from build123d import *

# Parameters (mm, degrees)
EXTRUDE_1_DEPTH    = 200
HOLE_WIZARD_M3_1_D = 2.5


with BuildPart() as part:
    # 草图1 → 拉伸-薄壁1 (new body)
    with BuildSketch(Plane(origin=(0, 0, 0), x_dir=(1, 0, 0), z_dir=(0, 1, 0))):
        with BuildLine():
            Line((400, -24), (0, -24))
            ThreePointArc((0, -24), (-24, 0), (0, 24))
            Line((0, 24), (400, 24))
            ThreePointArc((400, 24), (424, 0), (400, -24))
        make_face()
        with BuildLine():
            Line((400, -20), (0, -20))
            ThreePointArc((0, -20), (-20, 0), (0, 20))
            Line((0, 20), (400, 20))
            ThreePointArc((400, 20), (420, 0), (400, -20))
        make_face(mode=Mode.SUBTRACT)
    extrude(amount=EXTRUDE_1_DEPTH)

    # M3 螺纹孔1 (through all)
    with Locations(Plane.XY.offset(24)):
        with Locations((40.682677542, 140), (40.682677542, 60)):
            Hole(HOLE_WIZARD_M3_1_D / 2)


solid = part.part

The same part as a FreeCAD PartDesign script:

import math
import FreeCAD as App
import Part
import Sketcher

doc = App.newDocument("Part")
body = doc.addObject("PartDesign::Body", "Body")

# Sketch on XZ plane
sketch1 = doc.addObject("Sketcher::SketchObject", "Sketch")
body.addObject(sketch1)
sketch1.AttachmentSupport = (doc.XZ_Plane, [""])
sketch1.MapMode = "FlatFace"
sketch1.addGeometry(Part.LineSegment(App.Vector(0, 24, 0), App.Vector(400, 24, 0)), False)
sketch1.addGeometry(Part.ArcOfCircle(Part.Circle(App.Vector(400, 0, 0), App.Vector(0, 0, 1), 24), math.radians(-90), math.radians(90)), False)
sketch1.addGeometry(Part.LineSegment(App.Vector(400, -24, 0), App.Vector(0, -24, 0)), False)
sketch1.addGeometry(Part.ArcOfCircle(Part.Circle(App.Vector(0, 0, 0), App.Vector(0, 0, 1), 24), math.radians(90), math.radians(270)), False)
sketch1.addGeometry(Part.LineSegment(App.Vector(400, 20, 0), App.Vector(0, 20, 0)), False)
sketch1.addGeometry(Part.ArcOfCircle(Part.Circle(App.Vector(0, 0, 0), App.Vector(0, 0, 1), 20), math.radians(90), math.radians(270)), False)
sketch1.addGeometry(Part.LineSegment(App.Vector(0, -20, 0), App.Vector(400, -20, 0)), False)
sketch1.addGeometry(Part.ArcOfCircle(Part.Circle(App.Vector(400, 0, 0), App.Vector(0, 0, 1), 20), math.radians(-90), math.radians(90)), False)
sketch1.addConstraint(Sketcher.Constraint("Tangent", 0, 2, 1, 2))
sketch1.addConstraint(Sketcher.Constraint("Tangent", 1, 1, 2, 1))
sketch1.addConstraint(Sketcher.Constraint("Tangent", 2, 2, 3, 2))
sketch1.addConstraint(Sketcher.Constraint("Tangent", 3, 1, 0, 1))
sketch1.addConstraint(Sketcher.Constraint("Tangent", 4, 2, 5, 1))
sketch1.addConstraint(Sketcher.Constraint("Tangent", 5, 2, 6, 1))
sketch1.addConstraint(Sketcher.Constraint("Tangent", 6, 2, 7, 1))
sketch1.addConstraint(Sketcher.Constraint("Tangent", 7, 2, 4, 1))
sketch1.addConstraint(Sketcher.Constraint("Horizontal", 0))
sketch1.addConstraint(Sketcher.Constraint("Horizontal", 2))
sketch1.addConstraint(Sketcher.Constraint("Horizontal", 4))
sketch1.addConstraint(Sketcher.Constraint("Horizontal", 6))
sketch1.addConstraint(Sketcher.Constraint("Coincident", 3, 3, -1, 1))
sketch1.addConstraint(Sketcher.Constraint("Coincident", 5, 3, -1, 1))
sketch1.addConstraint(Sketcher.Constraint("Vertical", 7, 3, 0, 2))
sketch1.addConstraint(Sketcher.Constraint("Radius", 1, 24.0))
sketch1.addConstraint(Sketcher.Constraint("Radius", 5, 20.0))
sketch1.addConstraint(Sketcher.Constraint("DistanceX", 0, 1, 0, 2, 400.0))
pad1 = doc.addObject("PartDesign::Pad", "Pad")
body.addObject(pad1)
pad1.Profile = sketch1
pad1.Length = 200
pad1.Reversed = True

# Sketch on XY plane
sketch2 = doc.addObject("Sketcher::SketchObject", "Sketch001")
body.addObject(sketch2)
sketch2.AttachmentSupport = (doc.XY_Plane, [""])
sketch2.MapMode = "FlatFace"
sketch2.AttachmentOffset = App.Placement(App.Vector(0, 0, 24), App.Rotation())
sketch2.addGeometry(Part.Circle(App.Vector(40.682678, 140, 0), App.Vector(0, 0, 1), 1.25), False)
sketch2.addGeometry(Part.Circle(App.Vector(40.682678, 60, 0), App.Vector(0, 0, 1), 1.25), False)
sketch2.addConstraint(Sketcher.Constraint("Equal", 0, 1))
sketch2.addConstraint(Sketcher.Constraint("Vertical", 0, 3, 1, 3))
sketch2.addConstraint(Sketcher.Constraint("Diameter", 0, 2.5))
sketch2.addConstraint(Sketcher.Constraint("DistanceY", -1, 1, 0, 3, 140.0))
sketch2.addConstraint(Sketcher.Constraint("DistanceY", -1, 1, 1, 3, 60.0))
sketch2.addConstraint(Sketcher.Constraint("DistanceX", -1, 1, 0, 3, 40.682678))
doc.recompute()
hole = doc.addObject("PartDesign::Hole", "Hole")
body.addObject(hole)
hole.Profile = sketch2
hole.ThreadType = "None"
hole.Diameter = 2.5
hole.DepthType = "ThroughAll"

doc.recompute()
